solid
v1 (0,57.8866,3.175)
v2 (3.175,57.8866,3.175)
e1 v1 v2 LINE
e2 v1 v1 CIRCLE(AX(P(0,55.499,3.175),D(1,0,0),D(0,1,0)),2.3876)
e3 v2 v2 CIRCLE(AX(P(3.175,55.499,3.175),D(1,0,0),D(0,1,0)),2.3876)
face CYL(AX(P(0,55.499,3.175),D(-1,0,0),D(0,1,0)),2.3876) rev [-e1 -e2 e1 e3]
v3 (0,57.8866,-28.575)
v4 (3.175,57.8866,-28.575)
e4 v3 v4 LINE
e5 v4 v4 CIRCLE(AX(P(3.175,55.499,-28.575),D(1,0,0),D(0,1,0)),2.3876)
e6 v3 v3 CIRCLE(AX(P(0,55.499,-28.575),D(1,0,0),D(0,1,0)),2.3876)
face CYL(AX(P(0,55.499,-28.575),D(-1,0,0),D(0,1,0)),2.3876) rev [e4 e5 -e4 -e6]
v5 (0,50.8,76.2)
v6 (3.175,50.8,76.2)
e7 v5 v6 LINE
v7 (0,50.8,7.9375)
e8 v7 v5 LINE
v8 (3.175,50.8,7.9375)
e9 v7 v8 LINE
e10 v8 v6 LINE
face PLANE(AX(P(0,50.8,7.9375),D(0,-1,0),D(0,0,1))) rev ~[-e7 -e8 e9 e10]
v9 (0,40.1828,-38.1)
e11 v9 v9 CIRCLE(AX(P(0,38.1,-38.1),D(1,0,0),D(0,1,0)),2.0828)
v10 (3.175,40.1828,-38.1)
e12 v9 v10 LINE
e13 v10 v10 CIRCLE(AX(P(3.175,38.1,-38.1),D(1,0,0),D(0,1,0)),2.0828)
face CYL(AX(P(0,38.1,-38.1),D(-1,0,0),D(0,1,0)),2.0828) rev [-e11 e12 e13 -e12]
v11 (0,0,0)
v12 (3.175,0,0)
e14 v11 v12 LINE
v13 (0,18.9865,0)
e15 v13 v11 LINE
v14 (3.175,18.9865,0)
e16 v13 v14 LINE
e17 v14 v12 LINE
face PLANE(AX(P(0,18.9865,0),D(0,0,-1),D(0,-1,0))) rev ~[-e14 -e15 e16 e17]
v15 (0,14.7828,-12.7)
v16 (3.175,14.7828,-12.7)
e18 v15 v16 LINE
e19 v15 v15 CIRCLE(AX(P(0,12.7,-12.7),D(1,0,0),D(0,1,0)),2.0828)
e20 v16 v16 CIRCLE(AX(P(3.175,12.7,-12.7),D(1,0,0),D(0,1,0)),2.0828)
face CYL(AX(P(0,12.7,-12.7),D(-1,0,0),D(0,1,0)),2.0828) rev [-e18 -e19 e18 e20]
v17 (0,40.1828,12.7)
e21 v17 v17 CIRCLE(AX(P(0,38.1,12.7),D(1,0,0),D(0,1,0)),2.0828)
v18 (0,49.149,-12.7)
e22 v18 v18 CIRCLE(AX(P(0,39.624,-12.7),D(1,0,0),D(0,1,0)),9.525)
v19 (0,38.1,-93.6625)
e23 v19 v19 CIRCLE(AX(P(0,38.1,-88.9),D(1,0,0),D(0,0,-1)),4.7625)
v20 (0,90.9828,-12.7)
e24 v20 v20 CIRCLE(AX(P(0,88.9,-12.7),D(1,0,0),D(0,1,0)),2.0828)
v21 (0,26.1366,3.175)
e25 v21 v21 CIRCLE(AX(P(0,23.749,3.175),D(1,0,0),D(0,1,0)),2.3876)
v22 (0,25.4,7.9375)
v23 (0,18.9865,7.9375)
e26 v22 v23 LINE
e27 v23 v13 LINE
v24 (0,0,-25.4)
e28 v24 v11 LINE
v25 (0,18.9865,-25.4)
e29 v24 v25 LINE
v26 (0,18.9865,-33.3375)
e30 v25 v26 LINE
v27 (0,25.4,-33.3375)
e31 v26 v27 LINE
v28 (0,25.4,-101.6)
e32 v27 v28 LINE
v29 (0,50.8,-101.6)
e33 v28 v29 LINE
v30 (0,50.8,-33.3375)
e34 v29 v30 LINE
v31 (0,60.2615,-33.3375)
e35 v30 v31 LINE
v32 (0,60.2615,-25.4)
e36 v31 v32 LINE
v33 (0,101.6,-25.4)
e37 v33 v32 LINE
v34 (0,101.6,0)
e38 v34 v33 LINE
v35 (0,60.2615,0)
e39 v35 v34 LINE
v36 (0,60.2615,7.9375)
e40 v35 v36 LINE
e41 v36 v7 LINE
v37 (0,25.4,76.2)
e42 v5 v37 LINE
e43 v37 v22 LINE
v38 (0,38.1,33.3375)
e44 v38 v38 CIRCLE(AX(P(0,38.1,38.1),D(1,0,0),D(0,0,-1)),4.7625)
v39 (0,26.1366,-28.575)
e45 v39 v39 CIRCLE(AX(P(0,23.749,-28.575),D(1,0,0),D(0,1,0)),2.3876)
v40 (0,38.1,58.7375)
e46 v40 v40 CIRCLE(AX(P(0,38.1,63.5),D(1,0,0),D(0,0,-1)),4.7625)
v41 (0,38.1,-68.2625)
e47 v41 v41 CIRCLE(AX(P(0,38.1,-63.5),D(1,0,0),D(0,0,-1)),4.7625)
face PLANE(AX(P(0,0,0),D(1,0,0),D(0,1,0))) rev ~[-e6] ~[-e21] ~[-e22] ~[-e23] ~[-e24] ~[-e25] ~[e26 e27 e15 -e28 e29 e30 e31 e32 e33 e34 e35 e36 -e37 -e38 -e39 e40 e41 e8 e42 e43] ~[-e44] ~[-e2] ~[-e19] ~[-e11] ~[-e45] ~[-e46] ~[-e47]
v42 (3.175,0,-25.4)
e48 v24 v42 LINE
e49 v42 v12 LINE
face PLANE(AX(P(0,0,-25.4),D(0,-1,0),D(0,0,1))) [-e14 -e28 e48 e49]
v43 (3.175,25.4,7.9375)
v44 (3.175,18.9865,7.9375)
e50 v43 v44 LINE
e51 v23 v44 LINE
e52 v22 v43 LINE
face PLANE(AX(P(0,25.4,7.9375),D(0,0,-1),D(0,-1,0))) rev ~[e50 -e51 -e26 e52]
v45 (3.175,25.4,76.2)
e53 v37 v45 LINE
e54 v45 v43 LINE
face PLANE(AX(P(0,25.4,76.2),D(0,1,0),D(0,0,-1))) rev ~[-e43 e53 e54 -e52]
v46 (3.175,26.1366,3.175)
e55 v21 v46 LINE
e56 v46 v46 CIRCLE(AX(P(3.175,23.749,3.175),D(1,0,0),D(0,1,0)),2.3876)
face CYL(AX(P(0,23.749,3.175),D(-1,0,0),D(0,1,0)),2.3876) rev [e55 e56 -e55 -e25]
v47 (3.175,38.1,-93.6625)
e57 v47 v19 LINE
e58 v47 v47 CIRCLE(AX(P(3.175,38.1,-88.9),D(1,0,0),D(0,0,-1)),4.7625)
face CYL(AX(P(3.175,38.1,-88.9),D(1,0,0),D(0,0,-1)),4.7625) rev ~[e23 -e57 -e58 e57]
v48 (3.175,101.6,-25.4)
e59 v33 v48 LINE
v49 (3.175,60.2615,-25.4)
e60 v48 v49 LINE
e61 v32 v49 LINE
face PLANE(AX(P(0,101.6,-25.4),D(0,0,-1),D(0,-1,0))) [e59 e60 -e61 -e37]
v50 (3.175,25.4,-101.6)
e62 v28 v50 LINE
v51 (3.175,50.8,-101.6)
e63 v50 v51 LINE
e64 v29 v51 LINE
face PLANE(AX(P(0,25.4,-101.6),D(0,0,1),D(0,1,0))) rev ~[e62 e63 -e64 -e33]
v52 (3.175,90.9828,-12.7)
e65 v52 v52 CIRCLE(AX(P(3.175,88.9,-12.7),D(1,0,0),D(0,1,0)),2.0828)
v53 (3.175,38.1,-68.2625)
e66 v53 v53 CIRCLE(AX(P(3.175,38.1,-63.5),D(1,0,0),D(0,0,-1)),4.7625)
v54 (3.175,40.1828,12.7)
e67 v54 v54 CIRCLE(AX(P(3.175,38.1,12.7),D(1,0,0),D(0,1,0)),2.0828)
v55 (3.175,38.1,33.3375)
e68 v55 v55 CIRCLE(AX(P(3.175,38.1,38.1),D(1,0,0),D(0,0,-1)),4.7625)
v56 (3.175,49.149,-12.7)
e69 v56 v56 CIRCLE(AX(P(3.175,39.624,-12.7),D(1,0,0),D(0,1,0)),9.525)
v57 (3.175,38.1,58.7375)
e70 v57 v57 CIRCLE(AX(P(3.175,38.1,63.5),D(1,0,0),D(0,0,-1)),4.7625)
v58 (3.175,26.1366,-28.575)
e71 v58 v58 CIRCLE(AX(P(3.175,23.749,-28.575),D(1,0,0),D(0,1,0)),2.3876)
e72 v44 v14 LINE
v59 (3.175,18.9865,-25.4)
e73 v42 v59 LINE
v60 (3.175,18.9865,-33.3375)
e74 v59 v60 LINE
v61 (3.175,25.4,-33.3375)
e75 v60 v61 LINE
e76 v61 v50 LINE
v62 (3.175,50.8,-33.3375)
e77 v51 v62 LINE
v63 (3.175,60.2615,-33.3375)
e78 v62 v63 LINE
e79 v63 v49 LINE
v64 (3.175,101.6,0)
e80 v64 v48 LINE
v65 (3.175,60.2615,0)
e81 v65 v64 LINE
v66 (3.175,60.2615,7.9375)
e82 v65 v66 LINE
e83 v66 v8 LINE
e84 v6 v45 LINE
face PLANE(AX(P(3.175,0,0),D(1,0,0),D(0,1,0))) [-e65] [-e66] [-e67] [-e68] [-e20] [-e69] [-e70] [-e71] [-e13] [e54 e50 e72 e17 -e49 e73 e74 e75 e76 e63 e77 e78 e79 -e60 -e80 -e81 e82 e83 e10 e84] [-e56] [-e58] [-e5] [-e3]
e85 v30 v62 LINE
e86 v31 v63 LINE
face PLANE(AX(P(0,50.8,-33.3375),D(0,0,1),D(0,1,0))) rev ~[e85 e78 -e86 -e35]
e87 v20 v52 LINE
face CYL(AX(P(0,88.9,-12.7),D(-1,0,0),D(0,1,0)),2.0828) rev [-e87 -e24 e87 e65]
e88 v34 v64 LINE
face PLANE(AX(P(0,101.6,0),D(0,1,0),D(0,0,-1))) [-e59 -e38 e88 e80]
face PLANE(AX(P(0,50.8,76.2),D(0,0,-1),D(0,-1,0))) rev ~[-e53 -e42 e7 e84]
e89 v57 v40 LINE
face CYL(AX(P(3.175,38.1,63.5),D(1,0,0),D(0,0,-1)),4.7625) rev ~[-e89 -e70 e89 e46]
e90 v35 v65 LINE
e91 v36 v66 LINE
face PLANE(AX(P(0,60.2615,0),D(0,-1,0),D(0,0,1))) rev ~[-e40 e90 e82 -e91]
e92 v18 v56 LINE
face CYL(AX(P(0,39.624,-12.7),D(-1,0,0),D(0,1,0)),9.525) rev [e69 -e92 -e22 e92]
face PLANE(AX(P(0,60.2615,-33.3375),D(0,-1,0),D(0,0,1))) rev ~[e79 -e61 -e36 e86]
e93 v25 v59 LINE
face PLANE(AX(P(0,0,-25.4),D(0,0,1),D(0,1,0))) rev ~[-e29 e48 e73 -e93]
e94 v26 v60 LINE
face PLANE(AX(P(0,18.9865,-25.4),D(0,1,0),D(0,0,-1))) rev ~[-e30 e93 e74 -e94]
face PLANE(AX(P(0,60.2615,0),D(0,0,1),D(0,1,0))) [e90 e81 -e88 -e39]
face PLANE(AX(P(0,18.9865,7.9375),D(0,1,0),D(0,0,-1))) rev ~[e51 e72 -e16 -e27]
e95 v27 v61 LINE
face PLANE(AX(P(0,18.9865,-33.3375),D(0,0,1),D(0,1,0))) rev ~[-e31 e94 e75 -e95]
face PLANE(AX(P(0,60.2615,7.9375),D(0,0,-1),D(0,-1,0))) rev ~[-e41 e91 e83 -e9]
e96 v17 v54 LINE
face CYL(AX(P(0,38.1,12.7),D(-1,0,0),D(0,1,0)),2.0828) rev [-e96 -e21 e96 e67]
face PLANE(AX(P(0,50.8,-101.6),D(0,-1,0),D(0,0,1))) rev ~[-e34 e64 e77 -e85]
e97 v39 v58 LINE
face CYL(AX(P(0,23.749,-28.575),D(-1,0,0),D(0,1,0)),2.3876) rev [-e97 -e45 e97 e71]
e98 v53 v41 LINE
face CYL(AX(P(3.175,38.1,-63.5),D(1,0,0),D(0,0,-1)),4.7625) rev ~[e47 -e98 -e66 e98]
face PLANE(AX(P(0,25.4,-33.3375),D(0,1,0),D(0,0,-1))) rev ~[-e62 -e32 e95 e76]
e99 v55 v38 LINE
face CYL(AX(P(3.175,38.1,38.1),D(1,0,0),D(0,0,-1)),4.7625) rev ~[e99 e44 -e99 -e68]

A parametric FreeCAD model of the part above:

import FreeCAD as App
import Part
import Sketcher

V = App.Vector
Q = App.Units.Quantity


def add_polygon(sketch, points):
    """Adds a closed chain of lines whose ends are joined by coincident constraints."""
    first, n = sketch.GeometryCount, len(points)
    for a, b in zip(points, points[1:] + points[:1]):
        sketch.addGeometry(Part.LineSegment(App.Vector(*a, 0), App.Vector(*b, 0)), False)
    for i in range(n):
        sketch.addConstraint(Sketcher.Constraint("Coincident", first + i, 2, first + (i + 1) % n, 1))

doc = App.newDocument("Part")
body = doc.addObject("PartDesign::Body", "Body")

sketch1 = body.newObject("Sketcher::SketchObject", "Sketch")
sketch1.AttachmentSupport = (doc.getObject("YZ_Plane"), [""])
sketch1.MapMode = "FlatFace"
add_polygon(sketch1, [(101.6, -25.4), (101.6, 0), (60.3, 0), (60.3, 7.9), (50.8, 7.9), (50.8, 76.2), (25.4, 76.2), (25.4, 7.9), (19, 7.9), (19, 0), (0, 0), (0, -25.4), (19, -25.4), (19, -33.3), (25.4, -33.3), (25.4, -101.6), (50.8, -101.6), (50.8, -33.3), (60.3, -33.3), (60.3, -25.4)])
sketch1.addGeometry(Part.Circle(V(38.1, -88.9, 0), V(0, 0, 1), 2.1), False)
sketch1.addGeometry(Part.Circle(V(38.1, -63.5, 0), V(0, 0, 1), 2.1), False)
sketch1.addGeometry(Part.Circle(V(12.7, -12.7, 0), V(0, 0, 1), 2.1), False)
sketch1.addGeometry(Part.Circle(V(23.7, -28.6, 0), V(0, 0, 1), 2.4), False)
sketch1.addGeometry(Part.Circle(V(38.1, -38.1, 0), V(0, 0, 1), 2.1), False)
sketch1.addGeometry(Part.Circle(V(39.6, -12.7, 0), V(0, 0, 1), 9.5), False)
sketch1.addGeometry(Part.Circle(V(55.5, -28.6, 0), V(0, 0, 1), 2.4), False)
sketch1.addGeometry(Part.Circle(V(88.9, -12.7, 0), V(0, 0, 1), 2.1), False)
sketch1.addGeometry(Part.Circle(V(23.7, 3.2, 0), V(0, 0, 1), 2.4), False)
sketch1.addGeometry(Part.Circle(V(38.1, 12.7, 0), V(0, 0, 1), 2.1), False)
sketch1.addGeometry(Part.Circle(V(38.1, 38.1, 0), V(0, 0, 1), 2.1), False)
sketch1.addGeometry(Part.Circle(V(38.1, 63.5, 0), V(0, 0, 1), 2.1), False)
sketch1.addGeometry(Part.Circle(V(55.5, 3.2, 0), V(0, 0, 1), 2.4), False)
sketch1.addConstraint(Sketcher.Constraint("Vertical", 0))
sketch1.addConstraint(Sketcher.Constraint("Horizontal", 1))
sketch1.addConstraint(Sketcher.Constraint("Vertical", 2))
sketch1.addConstraint(Sketcher.Constraint("Horizontal", 3))
sketch1.addConstraint(Sketcher.Constraint("Vertical", 4))
sketch1.addConstraint(Sketcher.Constraint("Horizontal", 5))
sketch1.addConstraint(Sketcher.Constraint("Vertical", 6))
sketch1.addConstraint(Sketcher.Constraint("Horizontal", 7))
sketch1.addConstraint(Sketcher.Constraint("Vertical", 8))
sketch1.addConstraint(Sketcher.Constraint("Horizontal", 9))
sketch1.addConstraint(Sketcher.Constraint("Vertical", 10))
sketch1.addConstraint(Sketcher.Constraint("Horizontal", 11))
sketch1.addConstraint(Sketcher.Constraint("Vertical", 12))
sketch1.addConstraint(Sketcher.Constraint("Horizontal", 13))
sketch1.addConstraint(Sketcher.Constraint("Vertical", 14))
sketch1.addConstraint(Sketcher.Constraint("Horizontal", 15))
sketch1.addConstraint(Sketcher.Constraint("Vertical", 16))
sketch1.addConstraint(Sketcher.Constraint("Horizontal", 17))
sketch1.addConstraint(Sketcher.Constraint("Vertical", 18))
sketch1.addConstraint(Sketcher.Constraint("Horizontal", 19))
sketch1.addConstraint(Sketcher.Constraint("Coincident", 9, 2, -1, 1))
sketch1.addConstraint(Sketcher.Constraint("Equal", 20, 21))
sketch1.addConstraint(Sketcher.Constraint("Equal", 21, 22))
sketch1.addConstraint(Sketcher.Constraint("Equal", 22, 24))
sketch1.addConstraint(Sketcher.Constraint("Equal", 23, 26))
sketch1.addConstraint(Sketcher.Constraint("Equal", 24, 27))
sketch1.addConstraint(Sketcher.Constraint("Equal", 26, 28))
sketch1.addConstraint(Sketcher.Constraint("Equal", 27, 29))
sketch1.addConstraint(Sketcher.Constraint("Equal", 29, 30))
sketch1.addConstraint(Sketcher.Constraint("Equal", 30, 31))
sketch1.addConstraint(Sketcher.Constraint("Equal", 28, 32))
sketch1.addConstraint(Sketcher.Constraint("Symmetric", 24, 3, 30, 3, -1))
sketch1.addConstraint(Sketcher.Constraint("Symmetric", 21, 3, 31, 3, -1))
sketch1.addConstraint(Sketcher.Constraint("PointOnObject", 0, 2, -1))
sketch1.addConstraint(Sketcher.Constraint("Horizontal", 22, 3, 25, 3))
sketch1.addConstraint(Sketcher.Constraint("Horizontal", 23, 3, 26, 3))
sketch1.addConstraint(Sketcher.Constraint("Horizontal", 25, 3, 27, 3))
sketch1.addConstraint(Sketcher.Constraint("Horizontal", 28, 3, 32, 3))
sketch1.addConstraint(Sketcher.Constraint("Horizontal", 3, 2, 6, 2))
sketch1.addConstraint(Sketcher.Constraint("Horizontal", 13, 2, 16, 2))
sketch1.addConstraint(Sketcher.Constraint("Horizontal", 11, 2, 18, 2))
sketch1.addConstraint(Sketcher.Constraint("Vertical", 20, 3, 21, 3))
sketch1.addConstraint(Sketcher.Constraint("Vertical", 21, 3, 24, 3))
sketch1.addConstraint(Sketcher.Constraint("Vertical", 23, 3, 28, 3))
sketch1.addConstraint(Sketcher.Constraint("Vertical", 24, 3, 29, 3))
sketch1.addConstraint(Sketcher.Constraint("Vertical", 26, 3, 32, 3))
sketch1.addConstraint(Sketcher.Constraint("Vertical", 8, 2, 11, 2))
sketch1.addConstraint(Sketcher.Constraint("Vertical", 6, 2, 13, 2))
sketch1.addConstraint(Sketcher.Constraint("Vertical", 4, 2, 15, 2))
sketch1.addConstraint(Sketcher.Constraint("Vertical", 2, 2, 17, 2))
sketch1.addConstraint(Sketcher.Constraint("Equal", 15, 0))
sketch1.addConstraint(Sketcher.Constraint("Equal", 8, 12))
sketch1.addConstraint(Sketcher.Constraint("Equal", 6, 14))
sketch1.addConstraint(Sketcher.Constraint("Diameter", 25, Q("0.75 in")))
sketch1.addConstraint(Sketcher.Constraint("DistanceX", 5, 2, 5, 1, Q("1 in")))
sketch1.addConstraint(Sketcher.Constraint("Diameter", 20, Q("0.164 in")))
sketch1.addConstraint(Sketcher.Constraint("Diameter", 23, Q("0.188 in")))
sketch1.addConstraint(Sketcher.Constraint("DistanceX", -1, 1, 0, 2, Q("4 in")))
sketch1.addConstraint(Sketcher.Constraint("DistanceY", -1, 1, 4, 2, Q("3 in")))
sketch1.addConstraint(Sketcher.Constraint("DistanceX", -1, 1, 5, 2, Q("1 in")))
sketch1.addConstraint(Sketcher.Constraint("DistanceY", 20, 3, 21, 3, Q("1 in")))
sketch1.addConstraint(Sketcher.Constraint("DistanceX", 22, 3, 21, 3, Q("1 in")))
sketch1.addConstraint(Sketcher.Constraint("DistanceY", 20, 3, 22, 3, Q("3 in")))
sketch1.addConstraint(Sketcher.Constraint("DistanceY", 21, 3, 24, 3, Q("1 in")))
sketch1.addConstraint(Sketcher.Constraint("DistanceY", 25, 3, 29, 3, Q("1 in")))
sketch1.addConstraint(Sketcher.Constraint("DistanceY", 29, 3, 30, 3, Q("1 in")))
sketch1.addConstraint(Sketcher.Constraint("DistanceX", -1, 1, 22, 3, Q("0.5 in")))
sketch1.addConstraint(Sketcher.Constraint("DistanceX", 27, 3, 0, 2, Q("0.5 in")))
sketch1.addConstraint(Sketcher.Constraint("DistanceX", 23, 3, 26, 3, Q("1.25 in")))
sketch1.addConstraint(Sketcher.Constraint("DistanceY", 23, 3, 28, 3, Q("1.25 in")))
sketch1.addConstraint(Sketcher.Constraint("DistanceX", 25, 3, 0, 2, Q("2.44 in")))
sketch1.addConstraint(Sketcher.Constraint("DistanceY", 24, 3, 28, 3, Q("1.625 in")))
sketch1.addConstraint(Sketcher.Constraint("DistanceX", 32, 3, 1, 2, Q("0.1875 in")))
sketch1.addConstraint(Sketcher.Constraint("DistanceX", 25, 3, 1, 2, Q("0.8125 in")))
sketch1.addConstraint(Sketcher.Constraint("DistanceY", 32, 3, 2, 2, Q("0.1875 in")))
sketch1.addConstraint(Sketcher.Constraint("DistanceX", 7, 2, 28, 3, Q("0.1875 in")))
pad1 = body.newObject("PartDesign::Pad", "Pad")
pad1.Profile = sketch1
pad1.Length = Q("0.125 in")

sketch2 = body.newObject("Sketcher::SketchObject", "Sketch001")
sketch2.AttachmentSupport = (doc.getObject("YZ_Plane"), [""])
sketch2.MapMode = "FlatFace"
sketch2.AttachmentOffset = App.Placement(V(0, 0, 0.125 * 25.4), App.Rotation())
sketch2.addGeometry(Part.Circle(V(38.1, -88.9, 0), V(0, 0, 1), 4.8), False)
sketch2.addGeometry(Part.Circle(V(38.1, -63.5, 0), V(0, 0, 1), 4.8), False)
sketch2.addGeometry(Part.Circle(V(38.1, 38.1, 0), V(0, 0, 1), 4.8), False)
sketch2.addGeometry(Part.Circle(V(38.1, 38.1, 0), V(0, 0, 1), 2.1), False)
sketch2.addGeometry(Part.Circle(V(38.1, 63.5, 0), V(0, 0, 1), 4.8), False)
sketch2.addGeometry(Part.Circle(V(38.1, 63.5, 0), V(0, 0, 1), 2.1), False)
sketch2.addConstraint(Sketcher.Constraint("Coincident", 3, 3, 2, 3))
sketch2.addConstraint(Sketcher.Constraint("Coincident", 5, 3, 4, 3))
sketch2.addConstraint(Sketcher.Constraint("Equal", 0, 1))
sketch2.addConstraint(Sketcher.Constraint("Equal", 1, 2))
sketch2.addConstraint(Sketcher.Constraint("Equal", 2, 4))
sketch2.addConstraint(Sketcher.Constraint("Equal", 3, 5))
sketch2.addConstraint(Sketcher.Constraint("Symmetric", 1, 3, 4, 3, -1))
sketch2.addConstraint(Sketcher.Constraint("Vertical", 0, 3, 1, 3))
sketch2.addConstraint(Sketcher.Constraint("Vertical", 1, 3, 2, 3))
sketch2.addConstraint(Sketcher.Constraint("Diameter", 0, Q("0.375 in")))
sketch2.addConstraint(Sketcher.Constraint("Diameter", 3, Q("0.164 in")))
sketch2.addConstraint(Sketcher.Constraint("DistanceY", 0, 3, 1, 3, Q("1 in")))
sketch2.addConstraint(Sketcher.Constraint("DistanceY", 1, 3, 2, 3, Q("4 in")))
sketch2.addConstraint(Sketcher.Constraint("DistanceY", 2, 3, 4, 3, Q("1 in")))
sketch2.addConstraint(Sketcher.Constraint("DistanceX", -1, 1, 0, 3, Q("1.5 in")))
pocket1 = body.newObject("PartDesign::Pocket", "Pocket")
pocket1.Profile = sketch2
pocket1.Length = Q("1 in")

doc.recompute()
